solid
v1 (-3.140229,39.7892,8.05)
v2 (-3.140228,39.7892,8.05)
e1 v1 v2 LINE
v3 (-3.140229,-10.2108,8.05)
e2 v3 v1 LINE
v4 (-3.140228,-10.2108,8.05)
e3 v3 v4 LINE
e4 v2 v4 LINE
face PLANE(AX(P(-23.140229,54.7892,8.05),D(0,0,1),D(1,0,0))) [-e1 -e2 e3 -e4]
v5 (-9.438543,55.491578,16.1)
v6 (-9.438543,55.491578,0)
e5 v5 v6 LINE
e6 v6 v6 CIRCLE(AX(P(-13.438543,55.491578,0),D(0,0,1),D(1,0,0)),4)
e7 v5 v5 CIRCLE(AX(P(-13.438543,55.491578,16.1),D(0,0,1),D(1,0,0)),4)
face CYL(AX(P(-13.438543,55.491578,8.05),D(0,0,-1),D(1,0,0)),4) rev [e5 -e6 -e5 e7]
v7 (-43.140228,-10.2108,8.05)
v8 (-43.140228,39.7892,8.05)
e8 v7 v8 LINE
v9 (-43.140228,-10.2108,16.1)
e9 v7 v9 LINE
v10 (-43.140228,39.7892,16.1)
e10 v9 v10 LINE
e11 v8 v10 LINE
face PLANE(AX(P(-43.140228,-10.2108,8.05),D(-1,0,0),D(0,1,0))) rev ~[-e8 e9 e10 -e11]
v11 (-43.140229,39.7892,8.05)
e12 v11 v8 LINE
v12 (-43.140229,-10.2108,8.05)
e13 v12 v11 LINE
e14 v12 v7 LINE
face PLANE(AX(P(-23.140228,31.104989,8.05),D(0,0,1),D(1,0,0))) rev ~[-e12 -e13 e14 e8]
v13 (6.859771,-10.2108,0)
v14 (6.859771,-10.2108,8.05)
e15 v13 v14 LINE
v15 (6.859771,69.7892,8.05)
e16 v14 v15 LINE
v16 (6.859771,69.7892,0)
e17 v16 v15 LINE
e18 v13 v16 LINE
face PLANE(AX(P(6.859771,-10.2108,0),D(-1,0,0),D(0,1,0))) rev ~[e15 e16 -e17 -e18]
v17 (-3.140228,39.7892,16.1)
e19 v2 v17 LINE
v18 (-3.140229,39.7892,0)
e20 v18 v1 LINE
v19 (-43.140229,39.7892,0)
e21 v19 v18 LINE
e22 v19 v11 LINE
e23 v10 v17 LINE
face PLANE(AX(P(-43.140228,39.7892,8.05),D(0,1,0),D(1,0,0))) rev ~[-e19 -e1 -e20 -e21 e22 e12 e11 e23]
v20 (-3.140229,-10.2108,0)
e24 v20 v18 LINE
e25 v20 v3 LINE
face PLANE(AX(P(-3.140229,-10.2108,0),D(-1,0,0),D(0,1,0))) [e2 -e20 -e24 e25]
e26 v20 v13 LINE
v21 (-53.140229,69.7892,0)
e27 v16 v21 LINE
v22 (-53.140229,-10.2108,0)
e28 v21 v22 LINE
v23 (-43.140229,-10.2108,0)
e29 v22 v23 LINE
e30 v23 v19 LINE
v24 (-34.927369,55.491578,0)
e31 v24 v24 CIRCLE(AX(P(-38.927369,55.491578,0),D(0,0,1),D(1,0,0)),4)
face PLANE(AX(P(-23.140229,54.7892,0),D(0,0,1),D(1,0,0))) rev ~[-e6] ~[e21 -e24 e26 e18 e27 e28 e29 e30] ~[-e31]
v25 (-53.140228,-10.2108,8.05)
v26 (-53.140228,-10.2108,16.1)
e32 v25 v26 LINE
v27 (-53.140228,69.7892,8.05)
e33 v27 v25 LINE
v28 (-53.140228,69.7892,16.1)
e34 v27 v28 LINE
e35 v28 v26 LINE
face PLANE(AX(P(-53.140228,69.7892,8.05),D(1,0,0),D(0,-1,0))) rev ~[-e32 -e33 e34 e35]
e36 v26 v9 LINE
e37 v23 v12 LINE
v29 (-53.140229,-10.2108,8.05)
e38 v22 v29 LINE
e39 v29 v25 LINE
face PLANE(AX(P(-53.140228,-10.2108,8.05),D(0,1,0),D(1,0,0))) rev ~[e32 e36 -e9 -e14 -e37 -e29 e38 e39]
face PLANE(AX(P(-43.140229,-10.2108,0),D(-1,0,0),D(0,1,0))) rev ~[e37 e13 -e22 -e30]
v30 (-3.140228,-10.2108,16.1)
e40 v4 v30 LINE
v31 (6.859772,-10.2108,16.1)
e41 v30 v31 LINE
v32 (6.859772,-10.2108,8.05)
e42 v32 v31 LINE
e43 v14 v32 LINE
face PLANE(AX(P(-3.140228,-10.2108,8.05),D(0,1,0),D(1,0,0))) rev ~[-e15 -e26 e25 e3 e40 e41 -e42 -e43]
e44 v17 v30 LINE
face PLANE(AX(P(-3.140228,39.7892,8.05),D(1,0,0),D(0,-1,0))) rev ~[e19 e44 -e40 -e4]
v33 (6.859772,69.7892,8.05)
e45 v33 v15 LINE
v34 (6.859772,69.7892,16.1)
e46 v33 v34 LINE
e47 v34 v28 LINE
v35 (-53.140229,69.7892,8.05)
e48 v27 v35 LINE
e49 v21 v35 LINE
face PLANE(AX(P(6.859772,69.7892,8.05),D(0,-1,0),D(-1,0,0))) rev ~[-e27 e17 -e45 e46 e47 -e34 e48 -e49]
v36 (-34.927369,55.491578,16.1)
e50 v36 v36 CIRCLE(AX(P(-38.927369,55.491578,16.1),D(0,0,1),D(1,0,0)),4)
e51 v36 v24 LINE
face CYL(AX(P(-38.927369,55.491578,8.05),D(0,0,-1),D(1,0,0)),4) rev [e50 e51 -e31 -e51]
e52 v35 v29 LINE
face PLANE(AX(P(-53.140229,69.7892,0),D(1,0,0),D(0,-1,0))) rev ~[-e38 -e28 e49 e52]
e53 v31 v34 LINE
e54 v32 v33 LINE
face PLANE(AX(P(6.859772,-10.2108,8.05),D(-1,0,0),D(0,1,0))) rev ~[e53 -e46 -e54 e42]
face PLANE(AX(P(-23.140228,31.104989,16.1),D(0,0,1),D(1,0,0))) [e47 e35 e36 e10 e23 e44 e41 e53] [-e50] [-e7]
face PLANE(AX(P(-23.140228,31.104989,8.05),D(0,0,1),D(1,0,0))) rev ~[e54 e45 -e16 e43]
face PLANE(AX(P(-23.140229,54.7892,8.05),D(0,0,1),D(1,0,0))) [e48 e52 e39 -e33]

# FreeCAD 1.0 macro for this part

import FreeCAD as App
import Part
import Sketcher
Q = App.Units.Quantity

doc = App.newDocument("Part")
body = doc.addObject("PartDesign::Body", "Body")

sketch1 = body.newObject("Sketcher::SketchObject", "Sketch")
sketch1.AttachmentSupport = (doc.getObject("XY_Plane"), [""])
sketch1.MapMode = "FlatFace"
sketch1.addGeometry(Part.LineSegment(App.Vector(6.9, 69.8, 0), App.Vector(-53.1, 69.8, 0)), False)
sketch1.addGeometry(Part.LineSegment(App.Vector(-53.1, 69.8, 0), App.Vector(-53.1, -10.2, 0)), False)
sketch1.addGeometry(Part.LineSegment(App.Vector(-53.1, -10.2, 0), App.Vector(-43.1, -10.2, 0)), False)
sketch1.addGeometry(Part.LineSegment(App.Vector(-43.1, -10.2, 0), App.Vector(-43.1, 39.8, 0)), False)
sketch1.addGeometry(Part.LineSegment(App.Vector(-43.1, 39.8, 0), App.Vector(-3.1, 39.8, 0)), False)
sketch1.addGeometry(Part.LineSegment(App.Vector(-3.1, 39.8, 0), App.Vector(-3.1, -10.2, 0)), False)
sketch1.addGeometry(Part.LineSegment(App.Vector(-3.1, -10.2, 0), App.Vector(6.9, -10.2, 0)), False)
sketch1.addGeometry(Part.LineSegment(App.Vector(6.9, -10.2, 0), App.Vector(6.9, 69.8, 0)), False)
sketch1.addGeometry(Part.Circle(App.Vector(-38.9, 55.5, 0), App.Vector(0, 0, 1), 4), False)
sketch1.addGeometry(Part.Circle(App.Vector(-13.4, 55.5, 0), App.Vector(0, 0, 1), 4), False)
sketch1.addConstraint(Sketcher.Constraint("Coincident", 0, 2, 1, 1))
sketch1.addConstraint(Sketcher.Constraint("Coincident", 1, 2, 2, 1))
sketch1.addConstraint(Sketcher.Constraint("Coincident", 2, 2, 3, 1))
sketch1.addConstraint(Sketcher.Constraint("Coincident", 3, 2, 4, 1))
sketch1.addConstraint(Sketcher.Constraint("Coincident", 4, 2, 5, 1))
sketch1.addConstraint(Sketcher.Constraint("Coincident", 5, 2, 6, 1))
sketch1.addConstraint(Sketcher.Constraint("Coincident", 6, 2, 7, 1))
sketch1.addConstraint(Sketcher.Constraint("Coincident", 7, 2, 0, 1))
sketch1.addConstraint(Sketcher.Constraint("Horizontal", 0))
sketch1.addConstraint(Sketcher.Constraint("Vertical", 1))
sketch1.addConstraint(Sketcher.Constraint("Horizontal", 2))
sketch1.addConstraint(Sketcher.Constraint("Vertical", 3))
sketch1.addConstraint(Sketcher.Constraint("Horizontal", 4))
sketch1.addConstraint(Sketcher.Constraint("Vertical", 5))
sketch1.addConstraint(Sketcher.Constraint("Horizontal", 6))
sketch1.addConstraint(Sketcher.Constraint("Vertical", 7))
sketch1.addConstraint(Sketcher.Constraint("Equal", 8, 9))
sketch1.addConstraint(Sketcher.Constraint("Horizontal", 8, 3, 9, 3))
sketch1.addConstraint(Sketcher.Constraint("Horizontal", 2, 2, 5, 2))
sketch1.addConstraint(Sketcher.Constraint("Equal", 2, 6))
sketch1.addConstraint(Sketcher.Constraint("Diameter", 8, Q("8 mm")))
sketch1.addConstraint(Sketcher.Constraint("DistanceX", 0, 2, 0, 1, Q("60 mm")))
sketch1.addConstraint(Sketcher.Constraint("DistanceX", 2, 1, 2, 2, Q("10 mm")))
sketch1.addConstraint(Sketcher.Constraint("DistanceY", 1, 2, 1, 1, Q("80 mm")))
sketch1.addConstraint(Sketcher.Constraint("DistanceY", 3, 1, 3, 2, Q("50 mm")))
sketch1.addConstraint(Sketcher.Constraint("DistanceY", -1, 1, 0, 2, Q("69.7892 mm")))
sketch1.addConstraint(Sketcher.Constraint("DistanceX", 8, 3, -1, 1, Q("38.927369 mm")))
sketch1.addConstraint(Sketcher.Constraint("DistanceX", 0, 2, -1, 1, Q("53.140229 mm")))
sketch1.addConstraint(Sketcher.Constraint("DistanceY", 8, 3, 0, 2, Q("14.297622 mm")))
sketch1.addConstraint(Sketcher.Constraint("DistanceX", 9, 3, -1, 1, Q("13.438543 mm")))
pad1 = body.newObject("PartDesign::Pad", "Pad")
pad1.Profile = sketch1
pad1.Length = 8.05

sketch2 = body.newObject("Sketcher::SketchObject", "Sketch001")
sketch2.AttachmentSupport = (doc.getObject("XY_Plane"), [""])
sketch2.MapMode = "FlatFace"
sketch2.AttachmentOffset = App.Placement(App.Vector(0, 0, 8.05), App.Rotation())
sketch2.addGeometry(Part.LineSegment(App.Vector(6.9, 69.8, 0), App.Vector(-53.1, 69.8, 0)), False)
sketch2.addGeometry(Part.LineSegment(App.Vector(-53.1, 69.8, 0), App.Vector(-53.1, -10.2, 0)), False)
sketch2.addGeometry(Part.LineSegment(App.Vector(-53.1, -10.2, 0), App.Vector(-43.1, -10.2, 0)), False)
sketch2.addGeometry(Part.LineSegment(App.Vector(-43.1, -10.2, 0), App.Vector(-43.1, 39.8, 0)), False)
sketch2.addGeometry(Part.LineSegment(App.Vector(-43.1, 39.8, 0), App.Vector(-3.1, 39.8, 0)), False)
sketch2.addGeometry(Part.LineSegment(App.Vector(-3.1, 39.8, 0), App.Vector(-3.1, -10.2, 0)), False)
sketch2.addGeometry(Part.LineSegment(App.Vector(-3.1, -10.2, 0), App.Vector(6.9, -10.2, 0)), False)
sketch2.addGeometry(Part.LineSegment(App.Vector(6.9, -10.2, 0), App.Vector(6.9, 69.8, 0)), False)
sketch2.addGeometry(Part.Circle(App.Vector(-38.9, 55.5, 0), App.Vector(0, 0, 1), 4), False)
sketch2.addGeometry(Part.Circle(App.Vector(-13.4, 55.5, 0), App.Vector(0, 0, 1), 4), False)
sketch2.addConstraint(Sketcher.Constraint("Coincident", 0, 2, 1, 1))
sketch2.addConstraint(Sketcher.Constraint("Coincident", 1, 2, 2, 1))
sketch2.addConstraint(Sketcher.Constraint("Coincident", 2, 2, 3, 1))
sketch2.addConstraint(Sketcher.Constraint("Coincident", 3, 2, 4, 1))
sketch2.addConstraint(Sketcher.Constraint("Coincident", 4, 2, 5, 1))
sketch2.addConstraint(Sketcher.Constraint("Coincident", 5, 2, 6, 1))
sketch2.addConstraint(Sketcher.Constraint("Coincident", 6, 2, 7, 1))
sketch2.addConstraint(Sketcher.Constraint("Coincident", 7, 2, 0, 1))
sketch2.addConstraint(Sketcher.Constraint("Horizontal", 0))
sketch2.addConstraint(Sketcher.Constraint("Vertical", 1))
sketch2.addConstraint(Sketcher.Constraint("Horizontal", 2))
sketch2.addConstraint(Sketcher.Constraint("Vertical", 3))
sketch2.addConstraint(Sketcher.Constraint("Horizontal", 4))
sketch2.addConstraint(Sketcher.Constraint("Vertical", 5))
sketch2.addConstraint(Sketcher.Constraint("Horizontal", 6))
sketch2.addConstraint(Sketcher.Constraint("Vertical", 7))
sketch2.addConstraint(Sketcher.Constraint("Equal", 8, 9))
sketch2.addConstraint(Sketcher.Constraint("Horizontal", 8, 3, 9, 3))
sketch2.addConstraint(Sketcher.Constraint("Horizontal", 2, 2, 5, 2))
sketch2.addConstraint(Sketcher.Constraint("Equal", 2, 6))
sketch2.addConstraint(Sketcher.Constraint("Diameter", 8, Q("8 mm")))
sketch2.addConstraint(Sketcher.Constraint("DistanceX", 0, 2, 0, 1, Q("60 mm")))
sketch2.addConstraint(Sketcher.Constraint("DistanceX", 2, 1, 2, 2, Q("10 mm")))
sketch2.addConstraint(Sketcher.Constraint("DistanceY", 1, 2, 1, 1, Q("80 mm")))
sketch2.addConstraint(Sketcher.Constraint("DistanceY", 3, 1, 3, 2, Q("50 mm")))
sketch2.addConstraint(Sketcher.Constraint("DistanceY", -1, 1, 0, 2, Q("69.7892 mm")))
sketch2.addConstraint(Sketcher.Constraint("DistanceX", 8, 3, -1, 1, Q("38.927369 mm")))
sketch2.addConstraint(Sketcher.Constraint("DistanceX", 4, 2, -1, 1, Q("3.140228 mm")))
sketch2.addConstraint(Sketcher.Constraint("DistanceY", 8, 3, 0, 2, Q("14.297622 mm")))
sketch2.addConstraint(Sketcher.Constraint("DistanceX", 9, 3, -1, 1, Q("13.438543 mm")))
pad2 = body.newObject("PartDesign::Pad", "Pad001")
pad2.Profile = sketch2
pad2.Length = 8.05

doc.recompute()
